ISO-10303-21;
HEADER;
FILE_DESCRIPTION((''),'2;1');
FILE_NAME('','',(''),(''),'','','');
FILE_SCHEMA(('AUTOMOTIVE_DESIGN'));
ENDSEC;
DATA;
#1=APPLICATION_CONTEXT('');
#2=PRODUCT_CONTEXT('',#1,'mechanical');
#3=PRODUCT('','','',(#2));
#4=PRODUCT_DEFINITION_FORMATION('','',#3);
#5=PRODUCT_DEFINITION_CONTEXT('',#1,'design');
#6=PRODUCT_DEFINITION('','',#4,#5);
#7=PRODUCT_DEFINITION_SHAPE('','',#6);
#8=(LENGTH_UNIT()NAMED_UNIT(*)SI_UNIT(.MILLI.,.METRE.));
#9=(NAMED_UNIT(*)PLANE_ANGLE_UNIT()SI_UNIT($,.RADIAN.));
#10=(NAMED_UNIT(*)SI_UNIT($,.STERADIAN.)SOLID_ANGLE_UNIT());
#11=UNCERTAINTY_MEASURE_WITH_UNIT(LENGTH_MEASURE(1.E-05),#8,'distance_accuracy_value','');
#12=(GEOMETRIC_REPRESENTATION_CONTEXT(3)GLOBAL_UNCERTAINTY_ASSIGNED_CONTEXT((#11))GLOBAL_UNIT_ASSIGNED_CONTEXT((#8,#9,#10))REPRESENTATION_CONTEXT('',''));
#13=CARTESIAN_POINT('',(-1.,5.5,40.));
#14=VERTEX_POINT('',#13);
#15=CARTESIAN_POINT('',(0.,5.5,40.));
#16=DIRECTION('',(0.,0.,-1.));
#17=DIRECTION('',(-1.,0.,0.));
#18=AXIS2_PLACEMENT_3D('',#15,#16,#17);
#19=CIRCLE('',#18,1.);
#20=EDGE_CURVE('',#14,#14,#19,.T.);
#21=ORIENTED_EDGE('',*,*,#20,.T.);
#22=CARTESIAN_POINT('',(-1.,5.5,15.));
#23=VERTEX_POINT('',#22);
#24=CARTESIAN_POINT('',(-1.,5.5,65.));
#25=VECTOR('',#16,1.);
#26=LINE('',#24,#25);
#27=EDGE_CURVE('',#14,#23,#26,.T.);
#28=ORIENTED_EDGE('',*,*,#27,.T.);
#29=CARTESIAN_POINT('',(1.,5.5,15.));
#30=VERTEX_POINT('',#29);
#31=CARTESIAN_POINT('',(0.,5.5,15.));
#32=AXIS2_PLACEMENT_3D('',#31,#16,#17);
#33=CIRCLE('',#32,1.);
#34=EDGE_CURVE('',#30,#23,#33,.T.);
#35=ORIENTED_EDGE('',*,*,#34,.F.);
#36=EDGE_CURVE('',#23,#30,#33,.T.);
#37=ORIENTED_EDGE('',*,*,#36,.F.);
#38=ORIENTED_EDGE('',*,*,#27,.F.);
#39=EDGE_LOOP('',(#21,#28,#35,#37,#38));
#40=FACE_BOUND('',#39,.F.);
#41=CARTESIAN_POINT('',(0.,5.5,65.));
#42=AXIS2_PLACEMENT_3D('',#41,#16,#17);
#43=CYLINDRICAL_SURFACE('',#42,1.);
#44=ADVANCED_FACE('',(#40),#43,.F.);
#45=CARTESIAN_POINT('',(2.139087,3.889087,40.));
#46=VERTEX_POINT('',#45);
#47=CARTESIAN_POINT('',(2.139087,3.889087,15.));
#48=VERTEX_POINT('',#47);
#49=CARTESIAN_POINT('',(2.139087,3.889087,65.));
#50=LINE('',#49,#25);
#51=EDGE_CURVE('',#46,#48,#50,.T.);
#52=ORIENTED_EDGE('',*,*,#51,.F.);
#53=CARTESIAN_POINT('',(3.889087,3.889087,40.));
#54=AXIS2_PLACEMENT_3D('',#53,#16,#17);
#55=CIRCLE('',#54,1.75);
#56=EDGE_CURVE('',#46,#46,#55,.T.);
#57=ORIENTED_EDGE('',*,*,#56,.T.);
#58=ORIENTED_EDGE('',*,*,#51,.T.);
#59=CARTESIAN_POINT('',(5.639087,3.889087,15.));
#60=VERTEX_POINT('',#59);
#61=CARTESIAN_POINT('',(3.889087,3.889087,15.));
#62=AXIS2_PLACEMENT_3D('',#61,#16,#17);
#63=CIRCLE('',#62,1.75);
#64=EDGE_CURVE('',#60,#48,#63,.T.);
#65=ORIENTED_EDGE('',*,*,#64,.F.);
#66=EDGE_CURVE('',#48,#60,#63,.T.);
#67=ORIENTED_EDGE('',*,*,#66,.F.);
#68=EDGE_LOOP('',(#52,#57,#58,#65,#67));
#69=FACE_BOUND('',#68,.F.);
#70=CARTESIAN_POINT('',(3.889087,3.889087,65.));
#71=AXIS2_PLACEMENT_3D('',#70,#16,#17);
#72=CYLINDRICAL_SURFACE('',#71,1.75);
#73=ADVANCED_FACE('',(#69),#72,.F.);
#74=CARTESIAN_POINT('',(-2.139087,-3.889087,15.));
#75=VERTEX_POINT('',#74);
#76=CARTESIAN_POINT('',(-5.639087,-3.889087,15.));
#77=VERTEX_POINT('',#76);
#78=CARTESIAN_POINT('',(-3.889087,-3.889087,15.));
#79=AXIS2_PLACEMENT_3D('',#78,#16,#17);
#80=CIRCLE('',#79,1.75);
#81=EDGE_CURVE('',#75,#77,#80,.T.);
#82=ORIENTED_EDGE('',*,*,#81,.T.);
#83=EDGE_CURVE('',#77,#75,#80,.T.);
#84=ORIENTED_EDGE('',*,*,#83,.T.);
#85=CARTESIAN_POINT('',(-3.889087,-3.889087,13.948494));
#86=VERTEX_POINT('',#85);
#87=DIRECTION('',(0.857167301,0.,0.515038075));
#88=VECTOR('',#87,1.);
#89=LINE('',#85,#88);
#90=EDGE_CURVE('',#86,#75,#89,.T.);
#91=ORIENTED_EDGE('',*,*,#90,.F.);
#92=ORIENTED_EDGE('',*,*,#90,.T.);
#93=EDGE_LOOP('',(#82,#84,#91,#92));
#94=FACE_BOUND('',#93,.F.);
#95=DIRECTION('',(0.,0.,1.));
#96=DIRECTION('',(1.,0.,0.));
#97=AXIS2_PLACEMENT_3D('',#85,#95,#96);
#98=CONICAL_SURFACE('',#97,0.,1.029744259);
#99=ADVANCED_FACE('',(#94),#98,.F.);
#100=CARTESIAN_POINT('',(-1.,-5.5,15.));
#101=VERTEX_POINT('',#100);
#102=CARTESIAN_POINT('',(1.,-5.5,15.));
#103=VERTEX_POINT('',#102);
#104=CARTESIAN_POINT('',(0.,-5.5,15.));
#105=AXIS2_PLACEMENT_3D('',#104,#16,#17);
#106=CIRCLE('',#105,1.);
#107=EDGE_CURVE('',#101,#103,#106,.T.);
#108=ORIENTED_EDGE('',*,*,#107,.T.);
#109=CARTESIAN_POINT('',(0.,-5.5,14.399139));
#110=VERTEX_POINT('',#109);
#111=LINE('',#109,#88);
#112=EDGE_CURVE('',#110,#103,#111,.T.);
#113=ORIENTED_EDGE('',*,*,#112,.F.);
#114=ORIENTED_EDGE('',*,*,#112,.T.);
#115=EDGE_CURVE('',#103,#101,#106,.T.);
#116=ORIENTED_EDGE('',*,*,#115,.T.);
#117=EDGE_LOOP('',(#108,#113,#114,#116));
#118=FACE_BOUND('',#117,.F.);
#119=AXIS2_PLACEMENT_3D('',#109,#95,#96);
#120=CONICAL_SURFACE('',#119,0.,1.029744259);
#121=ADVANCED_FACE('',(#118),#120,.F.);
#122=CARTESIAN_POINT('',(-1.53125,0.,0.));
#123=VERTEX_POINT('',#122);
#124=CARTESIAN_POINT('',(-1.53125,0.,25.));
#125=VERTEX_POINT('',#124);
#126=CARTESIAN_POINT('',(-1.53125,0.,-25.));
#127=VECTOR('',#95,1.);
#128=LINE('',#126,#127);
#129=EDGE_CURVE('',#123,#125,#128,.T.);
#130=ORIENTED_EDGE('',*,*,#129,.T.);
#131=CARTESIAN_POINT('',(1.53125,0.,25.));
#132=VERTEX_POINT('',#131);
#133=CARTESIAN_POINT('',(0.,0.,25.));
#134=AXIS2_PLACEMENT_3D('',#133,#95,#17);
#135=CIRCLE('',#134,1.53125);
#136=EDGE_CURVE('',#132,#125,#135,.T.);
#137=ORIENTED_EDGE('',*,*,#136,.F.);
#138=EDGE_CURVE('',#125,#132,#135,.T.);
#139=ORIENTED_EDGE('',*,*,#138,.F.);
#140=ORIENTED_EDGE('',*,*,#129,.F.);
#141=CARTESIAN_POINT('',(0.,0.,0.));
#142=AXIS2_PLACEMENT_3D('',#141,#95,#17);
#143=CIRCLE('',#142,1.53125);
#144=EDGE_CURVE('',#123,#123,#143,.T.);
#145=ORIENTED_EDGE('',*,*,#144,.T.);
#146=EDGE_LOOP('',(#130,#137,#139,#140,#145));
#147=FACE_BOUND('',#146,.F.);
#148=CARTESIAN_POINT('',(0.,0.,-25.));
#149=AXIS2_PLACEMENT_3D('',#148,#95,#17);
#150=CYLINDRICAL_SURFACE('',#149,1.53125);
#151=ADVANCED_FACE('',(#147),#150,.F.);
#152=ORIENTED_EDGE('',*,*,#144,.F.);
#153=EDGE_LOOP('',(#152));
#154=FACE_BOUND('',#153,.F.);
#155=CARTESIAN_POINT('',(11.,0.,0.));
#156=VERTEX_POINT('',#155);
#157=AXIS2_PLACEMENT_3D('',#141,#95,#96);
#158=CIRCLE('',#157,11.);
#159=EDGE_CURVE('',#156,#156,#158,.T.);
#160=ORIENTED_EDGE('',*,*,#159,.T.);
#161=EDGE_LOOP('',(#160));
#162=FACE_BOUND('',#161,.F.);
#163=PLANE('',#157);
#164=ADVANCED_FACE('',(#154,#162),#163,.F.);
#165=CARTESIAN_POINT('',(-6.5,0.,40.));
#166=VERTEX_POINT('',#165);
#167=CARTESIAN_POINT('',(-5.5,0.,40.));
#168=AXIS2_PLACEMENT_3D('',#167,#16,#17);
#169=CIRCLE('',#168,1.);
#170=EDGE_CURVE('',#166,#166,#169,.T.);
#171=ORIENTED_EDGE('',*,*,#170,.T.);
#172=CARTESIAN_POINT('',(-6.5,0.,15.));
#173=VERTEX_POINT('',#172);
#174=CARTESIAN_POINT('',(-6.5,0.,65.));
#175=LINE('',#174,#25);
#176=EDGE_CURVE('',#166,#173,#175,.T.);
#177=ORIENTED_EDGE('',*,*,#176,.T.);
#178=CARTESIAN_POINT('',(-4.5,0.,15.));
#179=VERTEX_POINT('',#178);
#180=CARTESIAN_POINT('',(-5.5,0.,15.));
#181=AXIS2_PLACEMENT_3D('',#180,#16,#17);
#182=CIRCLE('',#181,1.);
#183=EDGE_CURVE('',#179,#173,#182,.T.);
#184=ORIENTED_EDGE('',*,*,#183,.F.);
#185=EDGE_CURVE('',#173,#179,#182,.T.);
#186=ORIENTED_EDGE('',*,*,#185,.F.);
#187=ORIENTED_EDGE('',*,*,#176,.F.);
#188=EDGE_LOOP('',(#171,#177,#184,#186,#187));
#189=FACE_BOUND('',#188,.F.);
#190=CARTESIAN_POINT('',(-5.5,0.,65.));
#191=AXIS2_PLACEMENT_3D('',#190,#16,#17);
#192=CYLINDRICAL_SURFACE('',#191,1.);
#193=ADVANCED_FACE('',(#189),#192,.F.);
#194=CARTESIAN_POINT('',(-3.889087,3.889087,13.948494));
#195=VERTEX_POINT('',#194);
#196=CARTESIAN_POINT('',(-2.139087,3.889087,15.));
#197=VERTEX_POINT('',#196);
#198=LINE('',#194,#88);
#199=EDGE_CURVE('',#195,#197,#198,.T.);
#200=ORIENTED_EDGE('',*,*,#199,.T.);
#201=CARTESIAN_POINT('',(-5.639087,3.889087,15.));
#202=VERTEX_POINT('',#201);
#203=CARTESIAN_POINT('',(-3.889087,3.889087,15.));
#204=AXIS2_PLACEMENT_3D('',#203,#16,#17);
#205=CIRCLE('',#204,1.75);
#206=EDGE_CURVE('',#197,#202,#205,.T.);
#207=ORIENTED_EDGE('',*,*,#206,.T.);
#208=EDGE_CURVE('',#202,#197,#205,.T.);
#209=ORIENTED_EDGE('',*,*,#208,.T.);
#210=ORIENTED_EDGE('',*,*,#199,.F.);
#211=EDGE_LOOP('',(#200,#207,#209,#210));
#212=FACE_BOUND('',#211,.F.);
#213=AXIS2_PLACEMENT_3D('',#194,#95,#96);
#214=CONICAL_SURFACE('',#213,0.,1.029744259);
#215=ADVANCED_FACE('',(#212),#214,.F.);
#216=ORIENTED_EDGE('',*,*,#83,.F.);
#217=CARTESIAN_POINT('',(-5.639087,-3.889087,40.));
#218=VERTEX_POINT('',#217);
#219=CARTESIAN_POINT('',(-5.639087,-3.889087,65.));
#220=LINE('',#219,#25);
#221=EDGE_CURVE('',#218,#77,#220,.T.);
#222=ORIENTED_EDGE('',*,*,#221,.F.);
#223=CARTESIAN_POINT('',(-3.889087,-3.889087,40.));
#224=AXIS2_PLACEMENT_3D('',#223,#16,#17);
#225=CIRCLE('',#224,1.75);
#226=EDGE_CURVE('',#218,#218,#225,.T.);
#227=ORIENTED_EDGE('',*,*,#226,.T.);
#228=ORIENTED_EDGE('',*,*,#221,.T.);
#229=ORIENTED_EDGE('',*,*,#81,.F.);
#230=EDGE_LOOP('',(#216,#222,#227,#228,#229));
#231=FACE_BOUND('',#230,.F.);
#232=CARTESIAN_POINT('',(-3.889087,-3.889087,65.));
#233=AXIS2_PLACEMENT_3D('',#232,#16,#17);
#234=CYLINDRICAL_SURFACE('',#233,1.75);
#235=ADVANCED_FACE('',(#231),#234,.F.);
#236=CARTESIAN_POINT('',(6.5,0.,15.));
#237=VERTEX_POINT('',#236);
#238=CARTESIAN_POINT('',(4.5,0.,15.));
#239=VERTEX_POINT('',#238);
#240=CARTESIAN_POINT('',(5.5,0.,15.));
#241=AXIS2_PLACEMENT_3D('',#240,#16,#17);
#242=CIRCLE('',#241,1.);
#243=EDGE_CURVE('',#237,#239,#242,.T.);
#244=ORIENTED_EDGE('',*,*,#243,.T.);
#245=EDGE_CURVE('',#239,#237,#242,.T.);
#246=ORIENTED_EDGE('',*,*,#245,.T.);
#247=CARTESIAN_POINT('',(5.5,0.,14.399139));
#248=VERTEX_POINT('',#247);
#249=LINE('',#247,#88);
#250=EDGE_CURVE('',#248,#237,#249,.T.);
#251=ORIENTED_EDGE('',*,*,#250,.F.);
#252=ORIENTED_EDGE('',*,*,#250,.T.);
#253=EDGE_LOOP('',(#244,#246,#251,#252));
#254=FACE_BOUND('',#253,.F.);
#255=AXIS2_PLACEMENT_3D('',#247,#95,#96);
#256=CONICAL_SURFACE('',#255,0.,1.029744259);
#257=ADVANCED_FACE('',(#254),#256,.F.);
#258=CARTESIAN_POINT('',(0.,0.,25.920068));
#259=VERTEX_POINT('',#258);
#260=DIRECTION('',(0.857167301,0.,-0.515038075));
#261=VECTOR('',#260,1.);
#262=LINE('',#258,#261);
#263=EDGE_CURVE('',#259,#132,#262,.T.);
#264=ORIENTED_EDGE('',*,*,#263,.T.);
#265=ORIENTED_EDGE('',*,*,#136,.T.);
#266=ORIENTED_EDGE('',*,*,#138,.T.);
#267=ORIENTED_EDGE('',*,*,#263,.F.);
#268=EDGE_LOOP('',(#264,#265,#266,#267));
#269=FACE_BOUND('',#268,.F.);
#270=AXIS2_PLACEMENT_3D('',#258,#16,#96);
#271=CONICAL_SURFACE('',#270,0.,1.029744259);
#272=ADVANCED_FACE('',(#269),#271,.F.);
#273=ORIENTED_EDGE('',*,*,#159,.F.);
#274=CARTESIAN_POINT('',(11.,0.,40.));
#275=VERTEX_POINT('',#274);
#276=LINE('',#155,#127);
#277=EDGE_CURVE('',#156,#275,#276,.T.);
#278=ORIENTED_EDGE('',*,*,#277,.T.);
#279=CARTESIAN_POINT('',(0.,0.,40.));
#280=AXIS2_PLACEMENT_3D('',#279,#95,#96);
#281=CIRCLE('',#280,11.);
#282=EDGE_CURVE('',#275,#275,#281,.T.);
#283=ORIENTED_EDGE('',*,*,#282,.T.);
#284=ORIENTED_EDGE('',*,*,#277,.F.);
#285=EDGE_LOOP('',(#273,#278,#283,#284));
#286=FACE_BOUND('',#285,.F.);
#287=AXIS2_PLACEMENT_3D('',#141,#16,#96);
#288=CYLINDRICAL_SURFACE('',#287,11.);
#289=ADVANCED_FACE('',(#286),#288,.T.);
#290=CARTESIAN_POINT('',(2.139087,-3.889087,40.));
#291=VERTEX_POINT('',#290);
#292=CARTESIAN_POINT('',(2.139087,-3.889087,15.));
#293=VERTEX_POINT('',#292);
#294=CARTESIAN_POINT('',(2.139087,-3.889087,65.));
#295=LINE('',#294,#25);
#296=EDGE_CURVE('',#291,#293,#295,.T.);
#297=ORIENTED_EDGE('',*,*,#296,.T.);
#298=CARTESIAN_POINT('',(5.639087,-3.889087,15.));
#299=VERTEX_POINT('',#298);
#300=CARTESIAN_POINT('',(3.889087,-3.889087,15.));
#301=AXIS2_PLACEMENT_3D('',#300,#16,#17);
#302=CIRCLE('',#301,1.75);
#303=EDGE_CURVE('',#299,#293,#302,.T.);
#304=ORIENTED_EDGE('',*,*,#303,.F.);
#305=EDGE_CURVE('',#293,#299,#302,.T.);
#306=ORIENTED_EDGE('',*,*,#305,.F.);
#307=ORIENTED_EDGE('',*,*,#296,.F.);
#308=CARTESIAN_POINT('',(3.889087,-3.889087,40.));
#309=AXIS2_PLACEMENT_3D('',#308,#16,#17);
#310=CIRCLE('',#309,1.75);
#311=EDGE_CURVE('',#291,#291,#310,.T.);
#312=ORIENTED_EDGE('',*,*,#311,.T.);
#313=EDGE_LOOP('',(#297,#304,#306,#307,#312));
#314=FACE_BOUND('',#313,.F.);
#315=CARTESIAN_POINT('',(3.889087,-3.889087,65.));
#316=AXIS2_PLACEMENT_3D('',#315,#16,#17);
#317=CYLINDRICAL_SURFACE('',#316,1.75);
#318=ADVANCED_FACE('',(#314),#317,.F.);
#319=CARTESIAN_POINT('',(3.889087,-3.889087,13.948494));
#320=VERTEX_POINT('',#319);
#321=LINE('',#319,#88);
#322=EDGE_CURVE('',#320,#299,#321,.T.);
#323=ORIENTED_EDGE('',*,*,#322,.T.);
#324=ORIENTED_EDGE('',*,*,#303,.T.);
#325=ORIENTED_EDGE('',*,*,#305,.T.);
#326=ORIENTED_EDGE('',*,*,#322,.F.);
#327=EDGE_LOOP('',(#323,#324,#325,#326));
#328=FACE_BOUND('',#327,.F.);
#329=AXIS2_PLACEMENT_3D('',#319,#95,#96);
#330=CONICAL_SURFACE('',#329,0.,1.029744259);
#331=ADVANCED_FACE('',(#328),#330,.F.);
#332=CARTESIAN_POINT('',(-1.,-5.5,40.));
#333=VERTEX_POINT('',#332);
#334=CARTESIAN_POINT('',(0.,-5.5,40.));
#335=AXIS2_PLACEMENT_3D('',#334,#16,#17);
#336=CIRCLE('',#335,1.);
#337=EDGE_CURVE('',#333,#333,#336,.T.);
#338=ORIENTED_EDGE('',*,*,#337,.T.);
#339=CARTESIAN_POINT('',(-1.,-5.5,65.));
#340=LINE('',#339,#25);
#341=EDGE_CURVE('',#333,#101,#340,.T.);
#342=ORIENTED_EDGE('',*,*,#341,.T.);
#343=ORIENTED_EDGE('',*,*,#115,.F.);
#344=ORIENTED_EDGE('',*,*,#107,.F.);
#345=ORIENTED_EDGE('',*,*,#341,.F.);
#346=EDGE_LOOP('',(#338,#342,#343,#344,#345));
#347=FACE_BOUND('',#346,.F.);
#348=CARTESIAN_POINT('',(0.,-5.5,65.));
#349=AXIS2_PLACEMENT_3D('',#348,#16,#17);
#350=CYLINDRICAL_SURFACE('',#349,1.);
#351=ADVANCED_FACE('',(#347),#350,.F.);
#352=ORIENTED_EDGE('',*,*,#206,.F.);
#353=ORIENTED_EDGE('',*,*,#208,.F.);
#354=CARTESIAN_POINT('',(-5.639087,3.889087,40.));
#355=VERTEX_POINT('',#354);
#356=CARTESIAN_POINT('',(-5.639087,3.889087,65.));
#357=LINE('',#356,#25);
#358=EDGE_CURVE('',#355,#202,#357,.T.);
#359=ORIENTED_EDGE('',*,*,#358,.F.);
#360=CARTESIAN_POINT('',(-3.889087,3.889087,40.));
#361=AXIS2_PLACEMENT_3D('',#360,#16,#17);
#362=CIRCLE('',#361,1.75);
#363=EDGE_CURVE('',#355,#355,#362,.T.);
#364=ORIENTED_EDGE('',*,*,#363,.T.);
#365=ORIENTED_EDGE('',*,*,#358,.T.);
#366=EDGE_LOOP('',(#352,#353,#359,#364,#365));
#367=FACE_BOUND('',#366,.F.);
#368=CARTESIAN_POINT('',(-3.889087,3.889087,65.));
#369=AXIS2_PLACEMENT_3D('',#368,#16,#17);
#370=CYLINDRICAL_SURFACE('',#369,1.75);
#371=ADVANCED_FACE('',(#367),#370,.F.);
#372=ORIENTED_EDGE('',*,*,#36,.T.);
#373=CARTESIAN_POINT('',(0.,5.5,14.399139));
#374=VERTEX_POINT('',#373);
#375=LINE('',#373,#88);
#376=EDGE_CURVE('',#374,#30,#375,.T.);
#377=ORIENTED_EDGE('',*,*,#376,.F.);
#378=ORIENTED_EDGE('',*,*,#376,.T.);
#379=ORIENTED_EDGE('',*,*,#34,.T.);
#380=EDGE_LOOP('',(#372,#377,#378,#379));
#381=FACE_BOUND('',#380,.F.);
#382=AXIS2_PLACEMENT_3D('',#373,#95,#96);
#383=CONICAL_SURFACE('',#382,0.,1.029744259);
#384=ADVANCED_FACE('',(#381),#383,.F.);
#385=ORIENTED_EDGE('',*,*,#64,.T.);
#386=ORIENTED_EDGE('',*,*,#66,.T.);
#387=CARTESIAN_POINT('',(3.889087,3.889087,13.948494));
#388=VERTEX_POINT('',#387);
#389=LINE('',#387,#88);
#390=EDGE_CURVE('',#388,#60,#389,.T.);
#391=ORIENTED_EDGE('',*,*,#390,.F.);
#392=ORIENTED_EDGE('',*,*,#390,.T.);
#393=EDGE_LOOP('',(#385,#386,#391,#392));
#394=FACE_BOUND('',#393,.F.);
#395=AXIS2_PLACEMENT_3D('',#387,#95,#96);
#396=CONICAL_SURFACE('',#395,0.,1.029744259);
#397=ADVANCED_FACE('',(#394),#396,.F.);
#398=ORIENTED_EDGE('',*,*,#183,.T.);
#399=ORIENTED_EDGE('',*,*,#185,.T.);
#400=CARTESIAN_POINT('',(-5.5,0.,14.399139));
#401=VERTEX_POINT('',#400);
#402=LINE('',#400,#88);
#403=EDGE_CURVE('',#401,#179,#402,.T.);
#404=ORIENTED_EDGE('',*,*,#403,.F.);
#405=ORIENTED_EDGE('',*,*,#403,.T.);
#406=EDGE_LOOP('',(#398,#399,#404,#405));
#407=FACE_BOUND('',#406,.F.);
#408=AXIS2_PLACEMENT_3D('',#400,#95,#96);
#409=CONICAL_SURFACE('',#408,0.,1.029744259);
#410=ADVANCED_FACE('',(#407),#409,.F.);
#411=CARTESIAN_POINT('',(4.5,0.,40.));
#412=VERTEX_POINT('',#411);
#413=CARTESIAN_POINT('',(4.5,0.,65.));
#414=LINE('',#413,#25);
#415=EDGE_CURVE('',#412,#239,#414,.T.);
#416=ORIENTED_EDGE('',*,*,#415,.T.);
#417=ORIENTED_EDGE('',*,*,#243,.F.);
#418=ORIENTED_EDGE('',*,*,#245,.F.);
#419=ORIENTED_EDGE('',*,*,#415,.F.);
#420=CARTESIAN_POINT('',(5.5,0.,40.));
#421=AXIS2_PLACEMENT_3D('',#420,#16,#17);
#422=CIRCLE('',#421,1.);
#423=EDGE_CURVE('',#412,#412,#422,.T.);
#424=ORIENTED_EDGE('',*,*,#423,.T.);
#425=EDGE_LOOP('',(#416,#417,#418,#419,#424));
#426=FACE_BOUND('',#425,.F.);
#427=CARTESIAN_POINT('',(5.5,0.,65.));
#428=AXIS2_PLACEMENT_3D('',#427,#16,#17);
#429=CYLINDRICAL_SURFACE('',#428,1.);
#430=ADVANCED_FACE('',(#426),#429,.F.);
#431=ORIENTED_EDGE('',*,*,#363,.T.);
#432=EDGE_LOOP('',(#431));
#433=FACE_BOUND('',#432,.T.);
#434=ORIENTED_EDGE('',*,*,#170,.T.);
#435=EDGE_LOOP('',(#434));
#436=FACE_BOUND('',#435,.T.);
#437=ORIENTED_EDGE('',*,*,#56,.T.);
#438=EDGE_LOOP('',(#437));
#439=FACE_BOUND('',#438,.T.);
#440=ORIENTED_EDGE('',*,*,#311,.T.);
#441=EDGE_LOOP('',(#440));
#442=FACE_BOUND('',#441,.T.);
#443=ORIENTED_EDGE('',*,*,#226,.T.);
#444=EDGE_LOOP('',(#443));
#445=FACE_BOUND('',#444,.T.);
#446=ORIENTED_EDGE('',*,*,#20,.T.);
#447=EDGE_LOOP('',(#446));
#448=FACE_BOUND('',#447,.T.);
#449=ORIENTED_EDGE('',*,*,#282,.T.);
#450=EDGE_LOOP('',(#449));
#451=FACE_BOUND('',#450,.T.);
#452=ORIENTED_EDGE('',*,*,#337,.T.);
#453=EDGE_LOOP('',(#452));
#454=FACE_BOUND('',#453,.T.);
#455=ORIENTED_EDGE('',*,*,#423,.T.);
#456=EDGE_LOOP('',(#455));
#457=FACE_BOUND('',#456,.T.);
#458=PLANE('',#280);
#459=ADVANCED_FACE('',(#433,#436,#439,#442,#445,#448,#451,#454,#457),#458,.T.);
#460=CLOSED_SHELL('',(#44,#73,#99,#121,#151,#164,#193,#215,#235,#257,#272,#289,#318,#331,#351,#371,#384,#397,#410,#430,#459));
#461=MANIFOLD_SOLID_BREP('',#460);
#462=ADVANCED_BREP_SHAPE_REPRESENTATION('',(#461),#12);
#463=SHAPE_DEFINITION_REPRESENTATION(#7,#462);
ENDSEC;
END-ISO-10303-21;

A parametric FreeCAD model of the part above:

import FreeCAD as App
import Part
import Sketcher

V = App.Vector

doc = App.newDocument("Part")
body = doc.addObject("PartDesign::Body", "Body")

# Sketch on XY plane
sketch1 = doc.addObject("Sketcher::SketchObject", "Sketch")
body.addObject(sketch1)
sketch1.AttachmentSupport = (doc.XY_Plane, [""])
sketch1.MapMode = "FlatFace"
sketch1.addGeometry(Part.Circle(V(0, 0, 0), V(0, 0, 1), 11), False)
sketch1.addConstraint(Sketcher.Constraint("Coincident", 0, 3, -1, 1))
sketch1.addConstraint(Sketcher.Constraint("Diameter", 0, 22.0))
pad1 = doc.addObject("PartDesign::Pad", "Pad")
body.addObject(pad1)
pad1.Profile = sketch1
pad1.Length = 40

# Sketch on XY plane
sketch2 = doc.addObject("Sketcher::SketchObject", "Sketch001")
body.addObject(sketch2)
sketch2.AttachmentSupport = (doc.XY_Plane, [""])
sketch2.MapMode = "FlatFace"
sketch2.addGeometry(Part.Circle(V(0, 0, 0), V(0, 0, 1), 1.5), False)
sketch2.addConstraint(Sketcher.Constraint("Coincident", 0, 3, -1, 1))
sketch2.addConstraint(Sketcher.Constraint("Diameter", 0, 3.0625))
doc.recompute()
hole = doc.addObject("PartDesign::Hole", "Hole")
body.addObject(hole)
hole.Profile = sketch2
hole.ThreadType = "None"
hole.Diameter = 3.0625
hole.DepthType = "Dimension"
hole.Depth = 25
hole.DrillPoint = "Angled"
hole.DrillPointAngle = 118
hole.Reversed = True

# Sketch on XY plane
sketch3 = doc.addObject("Sketcher::SketchObject", "Sketch002")
body.addObject(sketch3)
sketch3.AttachmentSupport = (doc.XY_Plane, [""])
sketch3.MapMode = "FlatFace"
sketch3.AttachmentOffset = App.Placement(V(0, 0, 40), App.Rotation())
sketch3.addGeometry(Part.Circle(V(0, 5.5, 0), V(0, 0, 1), 1), False)
sketch3.addGeometry(Part.Circle(V(5.5, 0, 0), V(0, 0, 1), 1), False)
sketch3.addGeometry(Part.Circle(V(-5.5, 0, 0), V(0, 0, 1), 1), False)
sketch3.addGeometry(Part.Circle(V(0, -5.5, 0), V(0, 0, 1), 1), False)
sketch3.addConstraint(Sketcher.Constraint("Equal", 0, 1))
sketch3.addConstraint(Sketcher.Constraint("Equal", 1, 2))
sketch3.addConstraint(Sketcher.Constraint("Equal", 2, 3))
sketch3.addConstraint(Sketcher.Constraint("Symmetric", 1, 3, 2, 3, -1, 1))
sketch3.addConstraint(Sketcher.Constraint("Symmetric", 0, 3, 3, 3, -1, 1))
sketch3.addConstraint(Sketcher.Constraint("PointOnObject", 0, 3, -2))
sketch3.addConstraint(Sketcher.Constraint("PointOnObject", 1, 3, -1))
sketch3.addConstraint(Sketcher.Constraint("Diameter", 0, 2.0))
sketch3.addConstraint(Sketcher.Constraint("DistanceX", 2, 3, 1, 3, 11.0))
sketch3.addConstraint(Sketcher.Constraint("DistanceY", 3, 3, 0, 3, 11.0))
doc.recompute()
hole2 = doc.addObject("PartDesign::Hole", "Hole001")
body.addObject(hole2)
hole2.Profile = sketch3
hole2.ThreadType = "None"
hole2.Diameter = 2
hole2.DepthType = "Dimension"
hole2.Depth = 25
hole2.DrillPoint = "Angled"
hole2.DrillPointAngle = 118

# Sketch on XY plane
sketch4 = doc.addObject("Sketcher::SketchObject", "Sketch003")
body.addObject(sketch4)
sketch4.AttachmentSupport = (doc.XY_Plane, [""])
sketch4.MapMode = "FlatFace"
sketch4.AttachmentOffset = App.Placement(V(0, 0, 40), App.Rotation())
sketch4.addGeometry(Part.Circle(V(-3.9, 3.9, 0), V(0, 0, 1), 1.8), False)
sketch4.addGeometry(Part.Circle(V(3.9, 3.9, 0), V(0, 0, 1), 1.8), False)
sketch4.addGeometry(Part.Circle(V(3.9, -3.9, 0), V(0, 0, 1), 1.8), False)
sketch4.addGeometry(Part.Circle(V(-3.9, -3.9, 0), V(0, 0, 1), 1.8), False)
sketch4.addConstraint(Sketcher.Constraint("Equal", 0, 1))
sketch4.addConstraint(Sketcher.Constraint("Equal", 1, 2))
sketch4.addConstraint(Sketcher.Constraint("Equal", 2, 3))
sketch4.addConstraint(Sketcher.Constraint("Symmetric", 0, 3, 2, 3, -1, 1))
sketch4.addConstraint(Sketcher.Constraint("Symmetric", 1, 3, 3, 3, -1, 1))
sketch4.addConstraint(Sketcher.Constraint("Symmetric", 0, 3, 1, 3, -2))
sketch4.addConstraint(Sketcher.Constraint("Diameter", 0, 3.5))
sketch4.addConstraint(Sketcher.Constraint("DistanceX", 0, 3, -1, 1, 3.889087))
sketch4.addConstraint(Sketcher.Constraint("DistanceY", -1, 1, 0, 3, 3.889087))
doc.recompute()
hole3 = doc.addObject("PartDesign::Hole", "Hole002")
body.addObject(hole3)
hole3.Profile = sketch4
hole3.ThreadType = "None"
hole3.Diameter = 3.5
hole3.DepthType = "Dimension"
hole3.Depth = 25
hole3.DrillPoint = "Angled"
hole3.DrillPointAngle = 118

doc.recompute()
